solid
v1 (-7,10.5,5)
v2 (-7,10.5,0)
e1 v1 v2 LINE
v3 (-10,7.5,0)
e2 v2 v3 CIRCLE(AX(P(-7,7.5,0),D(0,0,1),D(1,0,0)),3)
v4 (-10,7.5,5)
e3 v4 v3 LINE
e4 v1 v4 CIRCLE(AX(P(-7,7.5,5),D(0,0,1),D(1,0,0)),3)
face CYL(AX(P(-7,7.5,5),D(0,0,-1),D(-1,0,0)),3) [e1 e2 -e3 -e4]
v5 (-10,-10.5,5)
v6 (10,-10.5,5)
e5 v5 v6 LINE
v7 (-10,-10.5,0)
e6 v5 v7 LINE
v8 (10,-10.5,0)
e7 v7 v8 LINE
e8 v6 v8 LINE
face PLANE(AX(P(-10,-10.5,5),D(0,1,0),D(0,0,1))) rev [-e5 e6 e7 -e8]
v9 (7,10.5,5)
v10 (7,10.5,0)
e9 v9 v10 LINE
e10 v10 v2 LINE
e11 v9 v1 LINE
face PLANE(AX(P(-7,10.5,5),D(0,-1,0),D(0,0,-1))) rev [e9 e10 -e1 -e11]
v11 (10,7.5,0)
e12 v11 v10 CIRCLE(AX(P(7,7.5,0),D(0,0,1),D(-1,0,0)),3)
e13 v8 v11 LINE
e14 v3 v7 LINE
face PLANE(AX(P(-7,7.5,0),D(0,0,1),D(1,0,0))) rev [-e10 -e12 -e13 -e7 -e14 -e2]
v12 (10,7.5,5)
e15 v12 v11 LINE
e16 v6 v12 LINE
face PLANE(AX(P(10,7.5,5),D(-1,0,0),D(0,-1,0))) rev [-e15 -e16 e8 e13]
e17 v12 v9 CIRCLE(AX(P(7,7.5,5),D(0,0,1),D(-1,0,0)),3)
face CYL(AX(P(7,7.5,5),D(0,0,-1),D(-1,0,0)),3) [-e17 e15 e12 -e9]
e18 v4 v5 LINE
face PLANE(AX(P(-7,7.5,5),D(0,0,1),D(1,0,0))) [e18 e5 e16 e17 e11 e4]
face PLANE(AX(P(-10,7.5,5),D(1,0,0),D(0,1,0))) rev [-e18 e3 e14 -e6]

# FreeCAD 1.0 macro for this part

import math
import FreeCAD as App
import Part
import Sketcher

V = App.Vector

doc = App.newDocument("Part")
body = doc.addObject("PartDesign::Body", "Body")

sketch1 = body.newObject("Sketcher::SketchObject", "Sketch")
sketch1.AttachmentSupport = (doc.getObject("XY_Plane"), [""])
sketch1.MapMode = "FlatFace"
sketch1.addGeometry([
    Part.LineSegment(V(7, 10.5, 0), V(-7, 10.5, 0)),
    Part.ArcOfCircle(Part.Circle(V(-7, 7.5, 0), V(0, 0, 1), 3), math.radians(90), math.radians(180)),
    Part.LineSegment(V(-10, 7.5, 0), V(-10, -10.5, 0)),
    Part.LineSegment(V(-10, -10.5, 0), V(10, -10.5, 0)),
    Part.LineSegment(V(10, -10.5, 0), V(10, 7.5, 0)),
    Part.ArcOfCircle(Part.Circle(V(7, 7.5, 0), V(0, 0, 1), 3), math.radians(0), math.radians(90)),
], False)
sketch1.addConstraint([
    Sketcher.Constraint("Tangent", 0, 2, 1, 1),
    Sketcher.Constraint("Tangent", 1, 2, 2, 1),
    Sketcher.Constraint("Coincident", 2, 2, 3, 1),
    Sketcher.Constraint("Coincident", 3, 2, 4, 1),
    Sketcher.Constraint("Tangent", 4, 2, 5, 1),
    Sketcher.Constraint("Tangent", 5, 2, 0, 1),
    Sketcher.Constraint("Horizontal", 0),
    Sketcher.Constraint("Vertical", 2),
    Sketcher.Constraint("Horizontal", 3),
    Sketcher.Constraint("Vertical", 4),
    Sketcher.Constraint("Equal", 1, 5),
    Sketcher.Constraint("Radius", 1, 3.0),
    Sketcher.Constraint("DistanceX", 0, 2, 0, 1, 14.0),
    Sketcher.Constraint("DistanceY", 2, 2, 2, 1, 18.0),
    Sketcher.Constraint("DistanceX", 1, 3, -1, 1, 7.0),
    Sketcher.Constraint("DistanceY", -1, 1, 1, 3, 7.5),
])
pad1 = body.newObject("PartDesign::Pad", "Pad")
pad1.Profile = sketch1
pad1.Length = 5

doc.recompute()
